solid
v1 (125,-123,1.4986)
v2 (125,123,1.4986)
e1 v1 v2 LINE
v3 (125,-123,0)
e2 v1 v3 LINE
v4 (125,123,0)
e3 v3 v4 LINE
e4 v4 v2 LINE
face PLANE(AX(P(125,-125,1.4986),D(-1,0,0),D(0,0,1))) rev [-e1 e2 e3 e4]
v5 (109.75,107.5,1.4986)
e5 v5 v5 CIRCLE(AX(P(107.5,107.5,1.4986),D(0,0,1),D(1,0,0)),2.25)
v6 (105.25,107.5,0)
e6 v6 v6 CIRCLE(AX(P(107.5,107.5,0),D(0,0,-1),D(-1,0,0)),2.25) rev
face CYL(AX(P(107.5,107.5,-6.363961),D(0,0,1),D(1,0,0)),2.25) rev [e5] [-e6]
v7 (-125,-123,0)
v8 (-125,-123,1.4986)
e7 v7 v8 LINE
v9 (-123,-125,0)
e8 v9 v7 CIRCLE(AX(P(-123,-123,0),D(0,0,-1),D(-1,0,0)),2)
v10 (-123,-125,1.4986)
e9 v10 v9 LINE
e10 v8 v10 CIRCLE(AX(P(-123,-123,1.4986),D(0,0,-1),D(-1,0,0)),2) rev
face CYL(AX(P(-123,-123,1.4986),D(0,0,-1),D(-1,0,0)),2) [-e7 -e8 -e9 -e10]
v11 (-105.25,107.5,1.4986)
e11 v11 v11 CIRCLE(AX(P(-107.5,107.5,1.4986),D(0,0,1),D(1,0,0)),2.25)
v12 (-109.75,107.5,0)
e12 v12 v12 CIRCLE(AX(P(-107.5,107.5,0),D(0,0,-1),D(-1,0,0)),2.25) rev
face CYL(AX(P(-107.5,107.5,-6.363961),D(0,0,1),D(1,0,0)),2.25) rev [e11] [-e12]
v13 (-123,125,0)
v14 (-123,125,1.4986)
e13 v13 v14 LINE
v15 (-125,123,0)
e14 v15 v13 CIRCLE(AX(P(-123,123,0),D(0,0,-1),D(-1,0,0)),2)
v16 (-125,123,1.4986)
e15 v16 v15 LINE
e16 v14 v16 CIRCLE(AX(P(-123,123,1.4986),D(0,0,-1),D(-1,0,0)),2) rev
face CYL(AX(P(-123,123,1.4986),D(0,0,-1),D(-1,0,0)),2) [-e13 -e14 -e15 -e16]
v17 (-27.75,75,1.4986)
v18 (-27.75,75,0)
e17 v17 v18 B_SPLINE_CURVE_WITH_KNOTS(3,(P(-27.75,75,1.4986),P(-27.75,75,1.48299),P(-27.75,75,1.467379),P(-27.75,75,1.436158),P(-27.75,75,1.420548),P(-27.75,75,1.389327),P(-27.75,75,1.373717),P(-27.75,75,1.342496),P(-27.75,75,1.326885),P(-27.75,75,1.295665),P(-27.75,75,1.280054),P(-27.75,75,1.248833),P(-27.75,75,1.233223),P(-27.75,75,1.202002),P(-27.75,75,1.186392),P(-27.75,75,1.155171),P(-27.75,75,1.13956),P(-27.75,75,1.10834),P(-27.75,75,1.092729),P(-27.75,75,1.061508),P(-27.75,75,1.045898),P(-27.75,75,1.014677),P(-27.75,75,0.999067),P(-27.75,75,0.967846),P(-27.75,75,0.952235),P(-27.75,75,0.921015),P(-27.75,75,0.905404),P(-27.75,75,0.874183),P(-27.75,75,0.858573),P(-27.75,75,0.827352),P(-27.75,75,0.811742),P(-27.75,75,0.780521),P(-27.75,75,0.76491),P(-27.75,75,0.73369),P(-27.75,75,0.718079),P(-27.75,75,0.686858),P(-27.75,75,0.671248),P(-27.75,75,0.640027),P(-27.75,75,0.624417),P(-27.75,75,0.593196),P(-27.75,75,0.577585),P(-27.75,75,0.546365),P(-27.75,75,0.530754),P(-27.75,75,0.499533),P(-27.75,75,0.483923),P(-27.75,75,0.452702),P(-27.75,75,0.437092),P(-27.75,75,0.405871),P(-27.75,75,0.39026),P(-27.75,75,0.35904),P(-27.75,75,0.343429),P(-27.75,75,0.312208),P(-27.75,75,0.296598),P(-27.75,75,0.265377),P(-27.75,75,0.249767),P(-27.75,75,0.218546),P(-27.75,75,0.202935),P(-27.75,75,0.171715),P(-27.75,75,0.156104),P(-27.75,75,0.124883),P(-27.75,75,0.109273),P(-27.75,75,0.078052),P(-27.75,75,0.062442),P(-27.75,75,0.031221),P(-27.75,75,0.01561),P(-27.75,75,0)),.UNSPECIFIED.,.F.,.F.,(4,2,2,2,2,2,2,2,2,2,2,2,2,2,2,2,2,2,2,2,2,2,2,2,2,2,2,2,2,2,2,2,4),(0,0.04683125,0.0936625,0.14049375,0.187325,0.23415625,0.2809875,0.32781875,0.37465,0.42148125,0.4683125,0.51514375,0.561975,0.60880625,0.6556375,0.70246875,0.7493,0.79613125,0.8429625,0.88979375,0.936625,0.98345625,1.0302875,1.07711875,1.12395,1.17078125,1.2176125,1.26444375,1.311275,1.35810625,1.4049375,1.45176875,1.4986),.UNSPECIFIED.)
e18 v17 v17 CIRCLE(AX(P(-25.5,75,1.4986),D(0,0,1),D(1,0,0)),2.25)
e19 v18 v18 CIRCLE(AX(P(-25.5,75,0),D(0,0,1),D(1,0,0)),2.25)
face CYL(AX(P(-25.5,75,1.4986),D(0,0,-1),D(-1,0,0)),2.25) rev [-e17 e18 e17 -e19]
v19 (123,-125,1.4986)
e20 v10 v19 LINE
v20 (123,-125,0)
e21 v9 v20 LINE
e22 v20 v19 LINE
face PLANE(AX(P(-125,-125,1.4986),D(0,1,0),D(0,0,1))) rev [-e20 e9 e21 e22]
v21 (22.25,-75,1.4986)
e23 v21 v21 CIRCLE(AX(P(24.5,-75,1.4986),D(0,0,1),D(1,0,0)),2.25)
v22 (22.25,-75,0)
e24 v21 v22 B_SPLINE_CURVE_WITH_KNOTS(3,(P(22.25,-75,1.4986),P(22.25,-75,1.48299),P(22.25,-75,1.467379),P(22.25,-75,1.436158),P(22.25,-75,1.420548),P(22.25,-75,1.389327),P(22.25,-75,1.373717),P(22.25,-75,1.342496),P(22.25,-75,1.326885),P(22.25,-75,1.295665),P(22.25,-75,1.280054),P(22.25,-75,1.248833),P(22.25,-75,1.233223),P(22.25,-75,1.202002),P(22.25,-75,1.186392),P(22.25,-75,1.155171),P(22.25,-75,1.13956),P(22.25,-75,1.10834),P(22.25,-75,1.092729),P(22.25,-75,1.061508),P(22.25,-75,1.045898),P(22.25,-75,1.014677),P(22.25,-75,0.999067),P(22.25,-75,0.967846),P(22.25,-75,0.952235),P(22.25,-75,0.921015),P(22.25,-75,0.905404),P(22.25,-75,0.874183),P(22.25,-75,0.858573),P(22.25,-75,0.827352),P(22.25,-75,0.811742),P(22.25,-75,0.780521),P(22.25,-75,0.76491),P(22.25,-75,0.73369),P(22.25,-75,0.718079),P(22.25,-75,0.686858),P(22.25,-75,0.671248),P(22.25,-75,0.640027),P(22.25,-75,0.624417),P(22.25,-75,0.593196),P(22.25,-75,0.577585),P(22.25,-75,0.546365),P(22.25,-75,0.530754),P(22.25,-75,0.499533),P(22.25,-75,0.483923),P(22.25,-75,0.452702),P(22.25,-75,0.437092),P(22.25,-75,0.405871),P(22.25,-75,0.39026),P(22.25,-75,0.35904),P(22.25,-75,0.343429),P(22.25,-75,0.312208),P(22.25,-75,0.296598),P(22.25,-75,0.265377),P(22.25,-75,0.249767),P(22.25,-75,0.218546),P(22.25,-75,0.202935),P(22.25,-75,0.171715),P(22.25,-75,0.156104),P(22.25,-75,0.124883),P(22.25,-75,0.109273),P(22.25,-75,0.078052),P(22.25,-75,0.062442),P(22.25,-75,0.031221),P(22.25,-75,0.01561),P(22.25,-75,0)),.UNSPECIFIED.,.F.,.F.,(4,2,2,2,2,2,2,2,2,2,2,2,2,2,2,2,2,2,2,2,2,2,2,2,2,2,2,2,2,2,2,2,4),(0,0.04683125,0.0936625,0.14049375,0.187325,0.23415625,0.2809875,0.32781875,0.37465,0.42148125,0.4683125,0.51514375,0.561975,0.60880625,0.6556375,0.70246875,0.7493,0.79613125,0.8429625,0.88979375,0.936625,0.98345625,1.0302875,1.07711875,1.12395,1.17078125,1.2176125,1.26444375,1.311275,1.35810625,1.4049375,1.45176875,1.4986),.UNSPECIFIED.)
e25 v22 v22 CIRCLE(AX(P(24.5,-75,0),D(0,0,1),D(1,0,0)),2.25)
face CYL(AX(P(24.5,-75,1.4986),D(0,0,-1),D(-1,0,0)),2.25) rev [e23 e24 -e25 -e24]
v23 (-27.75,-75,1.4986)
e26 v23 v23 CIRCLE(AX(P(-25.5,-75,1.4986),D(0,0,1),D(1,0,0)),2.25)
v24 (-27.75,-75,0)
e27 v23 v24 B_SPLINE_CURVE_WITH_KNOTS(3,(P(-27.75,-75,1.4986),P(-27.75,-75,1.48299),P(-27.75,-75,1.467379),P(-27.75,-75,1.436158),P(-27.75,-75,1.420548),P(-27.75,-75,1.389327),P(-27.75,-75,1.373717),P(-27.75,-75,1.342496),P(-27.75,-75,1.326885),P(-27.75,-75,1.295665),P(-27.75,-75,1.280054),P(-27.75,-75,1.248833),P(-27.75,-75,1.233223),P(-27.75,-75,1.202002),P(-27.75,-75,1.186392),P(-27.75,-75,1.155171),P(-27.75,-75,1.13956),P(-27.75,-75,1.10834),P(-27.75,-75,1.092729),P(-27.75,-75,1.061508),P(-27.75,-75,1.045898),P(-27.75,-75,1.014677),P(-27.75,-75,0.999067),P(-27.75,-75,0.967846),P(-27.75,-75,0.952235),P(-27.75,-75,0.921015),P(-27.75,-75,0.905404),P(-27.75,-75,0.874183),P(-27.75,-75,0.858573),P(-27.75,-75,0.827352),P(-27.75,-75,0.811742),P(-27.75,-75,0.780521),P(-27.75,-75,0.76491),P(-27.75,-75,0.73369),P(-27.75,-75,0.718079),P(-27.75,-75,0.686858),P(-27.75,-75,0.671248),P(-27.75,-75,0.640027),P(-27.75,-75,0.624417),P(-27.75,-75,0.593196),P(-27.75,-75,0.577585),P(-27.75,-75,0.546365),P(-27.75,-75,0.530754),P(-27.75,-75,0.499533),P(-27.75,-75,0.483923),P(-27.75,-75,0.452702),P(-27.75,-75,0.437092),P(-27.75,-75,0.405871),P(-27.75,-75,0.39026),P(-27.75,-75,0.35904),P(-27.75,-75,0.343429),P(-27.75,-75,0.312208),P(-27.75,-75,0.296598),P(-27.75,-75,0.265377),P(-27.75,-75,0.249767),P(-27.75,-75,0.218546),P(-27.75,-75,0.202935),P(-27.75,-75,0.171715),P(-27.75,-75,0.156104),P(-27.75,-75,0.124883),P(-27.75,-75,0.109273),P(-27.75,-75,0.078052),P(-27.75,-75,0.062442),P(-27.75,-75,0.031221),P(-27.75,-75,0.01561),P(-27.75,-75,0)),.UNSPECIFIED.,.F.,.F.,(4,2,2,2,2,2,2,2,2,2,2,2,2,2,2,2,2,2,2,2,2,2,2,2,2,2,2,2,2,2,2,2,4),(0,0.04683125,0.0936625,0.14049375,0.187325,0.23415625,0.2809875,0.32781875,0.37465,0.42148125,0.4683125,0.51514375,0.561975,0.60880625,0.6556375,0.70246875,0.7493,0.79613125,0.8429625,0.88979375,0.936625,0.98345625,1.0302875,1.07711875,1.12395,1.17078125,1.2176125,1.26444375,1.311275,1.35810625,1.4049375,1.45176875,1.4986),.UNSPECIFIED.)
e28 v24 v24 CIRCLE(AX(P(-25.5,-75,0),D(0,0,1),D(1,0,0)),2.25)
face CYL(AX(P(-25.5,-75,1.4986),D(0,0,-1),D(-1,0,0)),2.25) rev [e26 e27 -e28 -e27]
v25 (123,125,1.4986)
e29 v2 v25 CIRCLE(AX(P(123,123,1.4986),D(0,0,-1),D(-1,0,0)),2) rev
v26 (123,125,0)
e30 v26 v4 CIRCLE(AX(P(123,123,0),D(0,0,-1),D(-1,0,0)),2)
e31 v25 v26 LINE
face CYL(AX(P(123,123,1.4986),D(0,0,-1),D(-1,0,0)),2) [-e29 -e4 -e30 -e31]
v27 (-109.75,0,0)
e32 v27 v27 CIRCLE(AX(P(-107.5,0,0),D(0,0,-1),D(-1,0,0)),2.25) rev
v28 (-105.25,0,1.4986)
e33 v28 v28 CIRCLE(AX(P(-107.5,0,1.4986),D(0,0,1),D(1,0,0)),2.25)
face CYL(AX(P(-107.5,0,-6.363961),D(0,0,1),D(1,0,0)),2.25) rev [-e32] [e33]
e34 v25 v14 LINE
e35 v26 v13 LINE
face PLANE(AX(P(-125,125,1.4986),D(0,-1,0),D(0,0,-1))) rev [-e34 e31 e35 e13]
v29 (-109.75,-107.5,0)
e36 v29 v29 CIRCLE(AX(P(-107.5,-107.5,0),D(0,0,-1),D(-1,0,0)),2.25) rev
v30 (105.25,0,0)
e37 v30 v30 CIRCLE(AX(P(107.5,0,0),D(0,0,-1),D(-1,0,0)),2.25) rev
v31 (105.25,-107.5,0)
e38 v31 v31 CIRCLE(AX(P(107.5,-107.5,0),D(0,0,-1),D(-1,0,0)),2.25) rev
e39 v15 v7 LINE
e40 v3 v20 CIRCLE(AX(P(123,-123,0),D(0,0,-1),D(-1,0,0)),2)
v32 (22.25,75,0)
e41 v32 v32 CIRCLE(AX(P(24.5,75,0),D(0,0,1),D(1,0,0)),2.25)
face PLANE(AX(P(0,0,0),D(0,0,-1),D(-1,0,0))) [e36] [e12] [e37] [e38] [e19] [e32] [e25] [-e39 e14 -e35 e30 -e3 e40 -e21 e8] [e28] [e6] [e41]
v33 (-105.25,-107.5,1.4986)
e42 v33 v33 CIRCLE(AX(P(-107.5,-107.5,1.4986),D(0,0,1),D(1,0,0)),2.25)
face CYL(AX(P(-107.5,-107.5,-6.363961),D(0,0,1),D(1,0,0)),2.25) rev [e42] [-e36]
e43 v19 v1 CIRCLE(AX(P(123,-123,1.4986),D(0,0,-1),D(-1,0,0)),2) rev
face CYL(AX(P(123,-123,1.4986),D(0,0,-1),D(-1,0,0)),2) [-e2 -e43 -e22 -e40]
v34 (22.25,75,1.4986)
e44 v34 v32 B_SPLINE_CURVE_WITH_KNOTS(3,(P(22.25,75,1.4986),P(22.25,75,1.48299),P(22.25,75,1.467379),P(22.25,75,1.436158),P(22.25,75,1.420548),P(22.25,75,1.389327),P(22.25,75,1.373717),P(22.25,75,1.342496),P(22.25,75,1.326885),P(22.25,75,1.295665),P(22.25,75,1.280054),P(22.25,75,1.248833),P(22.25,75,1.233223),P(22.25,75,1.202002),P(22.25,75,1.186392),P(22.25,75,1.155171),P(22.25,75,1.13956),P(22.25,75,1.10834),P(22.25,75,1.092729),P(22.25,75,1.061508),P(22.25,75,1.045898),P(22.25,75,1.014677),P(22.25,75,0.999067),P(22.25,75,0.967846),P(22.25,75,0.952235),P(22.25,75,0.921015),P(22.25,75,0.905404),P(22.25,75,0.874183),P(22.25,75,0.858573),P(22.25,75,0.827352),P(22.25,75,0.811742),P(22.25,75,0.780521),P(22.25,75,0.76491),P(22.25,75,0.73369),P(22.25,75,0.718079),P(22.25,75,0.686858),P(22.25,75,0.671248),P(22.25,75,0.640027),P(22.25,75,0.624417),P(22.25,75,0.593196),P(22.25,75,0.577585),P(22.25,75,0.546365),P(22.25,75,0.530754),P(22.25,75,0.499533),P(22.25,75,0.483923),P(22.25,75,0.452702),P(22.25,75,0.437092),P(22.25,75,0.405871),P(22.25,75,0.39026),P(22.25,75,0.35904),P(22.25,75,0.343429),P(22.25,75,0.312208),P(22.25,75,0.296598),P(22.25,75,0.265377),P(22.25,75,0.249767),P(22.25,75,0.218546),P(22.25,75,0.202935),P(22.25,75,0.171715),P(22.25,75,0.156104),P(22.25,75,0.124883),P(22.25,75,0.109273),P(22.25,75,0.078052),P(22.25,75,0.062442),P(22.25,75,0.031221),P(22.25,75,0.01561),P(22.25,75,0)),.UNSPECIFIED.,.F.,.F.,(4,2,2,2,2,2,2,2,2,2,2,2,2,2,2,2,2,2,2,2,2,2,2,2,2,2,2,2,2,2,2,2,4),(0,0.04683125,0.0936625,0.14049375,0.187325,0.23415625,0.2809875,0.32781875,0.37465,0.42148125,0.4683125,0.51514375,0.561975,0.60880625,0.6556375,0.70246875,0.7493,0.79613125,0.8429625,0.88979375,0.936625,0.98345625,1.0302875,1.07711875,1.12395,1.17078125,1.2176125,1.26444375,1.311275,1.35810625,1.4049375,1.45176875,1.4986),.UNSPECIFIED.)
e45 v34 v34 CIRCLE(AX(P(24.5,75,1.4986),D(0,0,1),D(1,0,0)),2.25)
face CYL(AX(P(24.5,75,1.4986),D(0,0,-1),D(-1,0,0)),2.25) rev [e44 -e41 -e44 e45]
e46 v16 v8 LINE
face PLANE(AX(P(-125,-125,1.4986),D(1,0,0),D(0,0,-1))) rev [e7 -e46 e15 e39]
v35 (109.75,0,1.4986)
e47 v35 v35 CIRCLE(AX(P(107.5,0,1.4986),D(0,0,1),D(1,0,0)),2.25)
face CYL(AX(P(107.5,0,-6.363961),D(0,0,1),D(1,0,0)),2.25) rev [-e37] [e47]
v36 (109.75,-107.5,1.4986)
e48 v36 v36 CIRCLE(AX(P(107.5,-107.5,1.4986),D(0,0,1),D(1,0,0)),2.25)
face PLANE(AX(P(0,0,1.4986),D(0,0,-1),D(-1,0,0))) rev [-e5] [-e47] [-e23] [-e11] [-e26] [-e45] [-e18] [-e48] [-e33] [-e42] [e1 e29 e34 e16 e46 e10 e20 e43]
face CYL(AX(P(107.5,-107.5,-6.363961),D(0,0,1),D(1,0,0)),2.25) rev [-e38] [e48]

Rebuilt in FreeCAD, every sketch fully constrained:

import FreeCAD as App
import Part
import Sketcher

V = App.Vector


def edges_at(feature, points):
    """Names of the edges that pass closest to the given points."""
    edges = feature.Shape.Edges
    near = lambda p: min(range(len(edges)), key=lambda i: edges[i].distToShape(Part.Vertex(*p))[0])
    return sorted({f"Edge{near(p) + 1}" for p in points})

doc = App.newDocument("Part")
body = doc.addObject("PartDesign::Body", "Body")

# Sketch on XY plane
sketch1 = doc.addObject("Sketcher::SketchObject", "Sketch")
body.addObject(sketch1)
sketch1.AttachmentSupport = (doc.XY_Plane, [""])
sketch1.MapMode = "FlatFace"
sketch1.addGeometry(Part.LineSegment(V(-125, 125, 0), V(-125, -125, 0)), False)
sketch1.addGeometry(Part.LineSegment(V(-125, -125, 0), V(125, -125, 0)), False)
sketch1.addGeometry(Part.LineSegment(V(125, -125, 0), V(125, 125, 0)), False)
sketch1.addGeometry(Part.LineSegment(V(125, 125, 0), V(-125, 125, 0)), False)
sketch1.addGeometry(Part.Circle(V(-25.5, -75, 0), V(0, 0, 1), 2.2), False)
sketch1.addGeometry(Part.Circle(V(24.5, -75, 0), V(0, 0, 1), 2.2), False)
sketch1.addGeometry(Part.Circle(V(-25.5, 75, 0), V(0, 0, 1), 2.2), False)
sketch1.addGeometry(Part.Circle(V(24.5, 75, 0), V(0, 0, 1), 2.2), False)
sketch1.addConstraint(Sketcher.Constraint("Coincident", 0, 2, 1, 1))
sketch1.addConstraint(Sketcher.Constraint("Coincident", 1, 2, 2, 1))
sketch1.addConstraint(Sketcher.Constraint("Coincident", 2, 2, 3, 1))
sketch1.addConstraint(Sketcher.Constraint("Coincident", 3, 2, 0, 1))
sketch1.addConstraint(Sketcher.Constraint("Vertical", 0))
sketch1.addConstraint(Sketcher.Constraint("Horizontal", 1))
sketch1.addConstraint(Sketcher.Constraint("Vertical", 2))
sketch1.addConstraint(Sketcher.Constraint("Horizontal", 3))
sketch1.addConstraint(Sketcher.Constraint("Equal", 4, 5))
sketch1.addConstraint(Sketcher.Constraint("Equal", 5, 6))
sketch1.addConstraint(Sketcher.Constraint("Equal", 6, 7))
sketch1.addConstraint(Sketcher.Constraint("Symmetric", 0, 2, 2, 2, -1, 1))
sketch1.addConstraint(Sketcher.Constraint("Symmetric", 4, 3, 6, 3, -1))
sketch1.addConstraint(Sketcher.Constraint("Symmetric", 5, 3, 7, 3, -1))
sketch1.addConstraint(Sketcher.Constraint("Horizontal", 4, 3, 5, 3))
sketch1.addConstraint(Sketcher.Constraint("Equal", 3, 0))
sketch1.addConstraint(Sketcher.Constraint("Diameter", 4, 4.5))
sketch1.addConstraint(Sketcher.Constraint("DistanceX", 1, 1, 1, 2, 250.0))
sketch1.addConstraint(Sketcher.Constraint("DistanceY", 4, 3, -1, 1, 75.0))
sketch1.addConstraint(Sketcher.Constraint("DistanceX", 4, 3, 5, 3, 50.0))
sketch1.addConstraint(Sketcher.Constraint("DistanceX", 4, 3, -1, 1, 25.5))
pad1 = doc.addObject("PartDesign::Pad", "Pad")
body.addObject(pad1)
pad1.Profile = sketch1
pad1.Length = 1.4986
doc.recompute()

fillet = doc.addObject("PartDesign::Fillet", "Fillet")
body.addObject(fillet)
fillet.Base = (pad1, edges_at(pad1, [
    (125, -125, 0.749),
    (-125, -125, 0.749),
    (-125, 125, 0.749),
    (125, 125, 0.749),
]))
fillet.Radius = 2

# Sketch on XY plane
sketch2 = doc.addObject("Sketcher::SketchObject", "Sketch001")
body.addObject(sketch2)
sketch2.AttachmentSupport = (doc.XY_Plane, [""])
sketch2.MapMode = "FlatFace"
sketch2.AttachmentOffset = App.Placement(V(0, 0, 1.4986), App.Rotation())
sketch2.addGeometry(Part.Circle(V(-107.5, 107.5, 0), V(0, 0, 1), 2.2), False)
sketch2.addGeometry(Part.Circle(V(107.5, 107.5, 0), V(0, 0, 1), 2.2), False)
sketch2.addGeometry(Part.Circle(V(107.5, -107.5, 0), V(0, 0, 1), 2.2), False)
sketch2.addGeometry(Part.Circle(V(-107.5, -107.5, 0), V(0, 0, 1), 2.2), False)
sketch2.addGeometry(Part.Circle(V(-107.5, 0, 0), V(0, 0, 1), 2.2), False)
sketch2.addGeometry(Part.Circle(V(107.5, 0, 0), V(0, 0, 1), 2.2), False)
sketch2.addConstraint(Sketcher.Constraint("Equal", 0, 1))
sketch2.addConstraint(Sketcher.Constraint("Equal", 1, 2))
sketch2.addConstraint(Sketcher.Constraint("Equal", 2, 3))
sketch2.addConstraint(Sketcher.Constraint("Equal", 3, 4))
sketch2.addConstraint(Sketcher.Constraint("Equal", 4, 5))
sketch2.addConstraint(Sketcher.Constraint("Symmetric", 0, 3, 2, 3, -1, 1))
sketch2.addConstraint(Sketcher.Constraint("Symmetric", 1, 3, 3, 3, -1, 1))
sketch2.addConstraint(Sketcher.Constraint("Symmetric", 4, 3, 5, 3, -1, 1))
sketch2.addConstraint(Sketcher.Constraint("Symmetric", 0, 3, 1, 3, -2))
sketch2.addConstraint(Sketcher.Constraint("PointOnObject", 4, 3, -1))
sketch2.addConstraint(Sketcher.Constraint("Vertical", 3, 3, 4, 3))
sketch2.addConstraint(Sketcher.Constraint("Diameter", 0, 4.5))
sketch2.addConstraint(Sketcher.Constraint("DistanceX", 0, 3, 1, 3, 215.0))
sketch2.addConstraint(Sketcher.Constraint("DistanceY", 2, 3, 1, 3, 215.0))
pocket1 = doc.addObject("PartDesign::Pocket", "Pocket")
body.addObject(pocket1)
pocket1.Profile = sketch2
pocket1.Length = 1.4986

doc.recompute()
